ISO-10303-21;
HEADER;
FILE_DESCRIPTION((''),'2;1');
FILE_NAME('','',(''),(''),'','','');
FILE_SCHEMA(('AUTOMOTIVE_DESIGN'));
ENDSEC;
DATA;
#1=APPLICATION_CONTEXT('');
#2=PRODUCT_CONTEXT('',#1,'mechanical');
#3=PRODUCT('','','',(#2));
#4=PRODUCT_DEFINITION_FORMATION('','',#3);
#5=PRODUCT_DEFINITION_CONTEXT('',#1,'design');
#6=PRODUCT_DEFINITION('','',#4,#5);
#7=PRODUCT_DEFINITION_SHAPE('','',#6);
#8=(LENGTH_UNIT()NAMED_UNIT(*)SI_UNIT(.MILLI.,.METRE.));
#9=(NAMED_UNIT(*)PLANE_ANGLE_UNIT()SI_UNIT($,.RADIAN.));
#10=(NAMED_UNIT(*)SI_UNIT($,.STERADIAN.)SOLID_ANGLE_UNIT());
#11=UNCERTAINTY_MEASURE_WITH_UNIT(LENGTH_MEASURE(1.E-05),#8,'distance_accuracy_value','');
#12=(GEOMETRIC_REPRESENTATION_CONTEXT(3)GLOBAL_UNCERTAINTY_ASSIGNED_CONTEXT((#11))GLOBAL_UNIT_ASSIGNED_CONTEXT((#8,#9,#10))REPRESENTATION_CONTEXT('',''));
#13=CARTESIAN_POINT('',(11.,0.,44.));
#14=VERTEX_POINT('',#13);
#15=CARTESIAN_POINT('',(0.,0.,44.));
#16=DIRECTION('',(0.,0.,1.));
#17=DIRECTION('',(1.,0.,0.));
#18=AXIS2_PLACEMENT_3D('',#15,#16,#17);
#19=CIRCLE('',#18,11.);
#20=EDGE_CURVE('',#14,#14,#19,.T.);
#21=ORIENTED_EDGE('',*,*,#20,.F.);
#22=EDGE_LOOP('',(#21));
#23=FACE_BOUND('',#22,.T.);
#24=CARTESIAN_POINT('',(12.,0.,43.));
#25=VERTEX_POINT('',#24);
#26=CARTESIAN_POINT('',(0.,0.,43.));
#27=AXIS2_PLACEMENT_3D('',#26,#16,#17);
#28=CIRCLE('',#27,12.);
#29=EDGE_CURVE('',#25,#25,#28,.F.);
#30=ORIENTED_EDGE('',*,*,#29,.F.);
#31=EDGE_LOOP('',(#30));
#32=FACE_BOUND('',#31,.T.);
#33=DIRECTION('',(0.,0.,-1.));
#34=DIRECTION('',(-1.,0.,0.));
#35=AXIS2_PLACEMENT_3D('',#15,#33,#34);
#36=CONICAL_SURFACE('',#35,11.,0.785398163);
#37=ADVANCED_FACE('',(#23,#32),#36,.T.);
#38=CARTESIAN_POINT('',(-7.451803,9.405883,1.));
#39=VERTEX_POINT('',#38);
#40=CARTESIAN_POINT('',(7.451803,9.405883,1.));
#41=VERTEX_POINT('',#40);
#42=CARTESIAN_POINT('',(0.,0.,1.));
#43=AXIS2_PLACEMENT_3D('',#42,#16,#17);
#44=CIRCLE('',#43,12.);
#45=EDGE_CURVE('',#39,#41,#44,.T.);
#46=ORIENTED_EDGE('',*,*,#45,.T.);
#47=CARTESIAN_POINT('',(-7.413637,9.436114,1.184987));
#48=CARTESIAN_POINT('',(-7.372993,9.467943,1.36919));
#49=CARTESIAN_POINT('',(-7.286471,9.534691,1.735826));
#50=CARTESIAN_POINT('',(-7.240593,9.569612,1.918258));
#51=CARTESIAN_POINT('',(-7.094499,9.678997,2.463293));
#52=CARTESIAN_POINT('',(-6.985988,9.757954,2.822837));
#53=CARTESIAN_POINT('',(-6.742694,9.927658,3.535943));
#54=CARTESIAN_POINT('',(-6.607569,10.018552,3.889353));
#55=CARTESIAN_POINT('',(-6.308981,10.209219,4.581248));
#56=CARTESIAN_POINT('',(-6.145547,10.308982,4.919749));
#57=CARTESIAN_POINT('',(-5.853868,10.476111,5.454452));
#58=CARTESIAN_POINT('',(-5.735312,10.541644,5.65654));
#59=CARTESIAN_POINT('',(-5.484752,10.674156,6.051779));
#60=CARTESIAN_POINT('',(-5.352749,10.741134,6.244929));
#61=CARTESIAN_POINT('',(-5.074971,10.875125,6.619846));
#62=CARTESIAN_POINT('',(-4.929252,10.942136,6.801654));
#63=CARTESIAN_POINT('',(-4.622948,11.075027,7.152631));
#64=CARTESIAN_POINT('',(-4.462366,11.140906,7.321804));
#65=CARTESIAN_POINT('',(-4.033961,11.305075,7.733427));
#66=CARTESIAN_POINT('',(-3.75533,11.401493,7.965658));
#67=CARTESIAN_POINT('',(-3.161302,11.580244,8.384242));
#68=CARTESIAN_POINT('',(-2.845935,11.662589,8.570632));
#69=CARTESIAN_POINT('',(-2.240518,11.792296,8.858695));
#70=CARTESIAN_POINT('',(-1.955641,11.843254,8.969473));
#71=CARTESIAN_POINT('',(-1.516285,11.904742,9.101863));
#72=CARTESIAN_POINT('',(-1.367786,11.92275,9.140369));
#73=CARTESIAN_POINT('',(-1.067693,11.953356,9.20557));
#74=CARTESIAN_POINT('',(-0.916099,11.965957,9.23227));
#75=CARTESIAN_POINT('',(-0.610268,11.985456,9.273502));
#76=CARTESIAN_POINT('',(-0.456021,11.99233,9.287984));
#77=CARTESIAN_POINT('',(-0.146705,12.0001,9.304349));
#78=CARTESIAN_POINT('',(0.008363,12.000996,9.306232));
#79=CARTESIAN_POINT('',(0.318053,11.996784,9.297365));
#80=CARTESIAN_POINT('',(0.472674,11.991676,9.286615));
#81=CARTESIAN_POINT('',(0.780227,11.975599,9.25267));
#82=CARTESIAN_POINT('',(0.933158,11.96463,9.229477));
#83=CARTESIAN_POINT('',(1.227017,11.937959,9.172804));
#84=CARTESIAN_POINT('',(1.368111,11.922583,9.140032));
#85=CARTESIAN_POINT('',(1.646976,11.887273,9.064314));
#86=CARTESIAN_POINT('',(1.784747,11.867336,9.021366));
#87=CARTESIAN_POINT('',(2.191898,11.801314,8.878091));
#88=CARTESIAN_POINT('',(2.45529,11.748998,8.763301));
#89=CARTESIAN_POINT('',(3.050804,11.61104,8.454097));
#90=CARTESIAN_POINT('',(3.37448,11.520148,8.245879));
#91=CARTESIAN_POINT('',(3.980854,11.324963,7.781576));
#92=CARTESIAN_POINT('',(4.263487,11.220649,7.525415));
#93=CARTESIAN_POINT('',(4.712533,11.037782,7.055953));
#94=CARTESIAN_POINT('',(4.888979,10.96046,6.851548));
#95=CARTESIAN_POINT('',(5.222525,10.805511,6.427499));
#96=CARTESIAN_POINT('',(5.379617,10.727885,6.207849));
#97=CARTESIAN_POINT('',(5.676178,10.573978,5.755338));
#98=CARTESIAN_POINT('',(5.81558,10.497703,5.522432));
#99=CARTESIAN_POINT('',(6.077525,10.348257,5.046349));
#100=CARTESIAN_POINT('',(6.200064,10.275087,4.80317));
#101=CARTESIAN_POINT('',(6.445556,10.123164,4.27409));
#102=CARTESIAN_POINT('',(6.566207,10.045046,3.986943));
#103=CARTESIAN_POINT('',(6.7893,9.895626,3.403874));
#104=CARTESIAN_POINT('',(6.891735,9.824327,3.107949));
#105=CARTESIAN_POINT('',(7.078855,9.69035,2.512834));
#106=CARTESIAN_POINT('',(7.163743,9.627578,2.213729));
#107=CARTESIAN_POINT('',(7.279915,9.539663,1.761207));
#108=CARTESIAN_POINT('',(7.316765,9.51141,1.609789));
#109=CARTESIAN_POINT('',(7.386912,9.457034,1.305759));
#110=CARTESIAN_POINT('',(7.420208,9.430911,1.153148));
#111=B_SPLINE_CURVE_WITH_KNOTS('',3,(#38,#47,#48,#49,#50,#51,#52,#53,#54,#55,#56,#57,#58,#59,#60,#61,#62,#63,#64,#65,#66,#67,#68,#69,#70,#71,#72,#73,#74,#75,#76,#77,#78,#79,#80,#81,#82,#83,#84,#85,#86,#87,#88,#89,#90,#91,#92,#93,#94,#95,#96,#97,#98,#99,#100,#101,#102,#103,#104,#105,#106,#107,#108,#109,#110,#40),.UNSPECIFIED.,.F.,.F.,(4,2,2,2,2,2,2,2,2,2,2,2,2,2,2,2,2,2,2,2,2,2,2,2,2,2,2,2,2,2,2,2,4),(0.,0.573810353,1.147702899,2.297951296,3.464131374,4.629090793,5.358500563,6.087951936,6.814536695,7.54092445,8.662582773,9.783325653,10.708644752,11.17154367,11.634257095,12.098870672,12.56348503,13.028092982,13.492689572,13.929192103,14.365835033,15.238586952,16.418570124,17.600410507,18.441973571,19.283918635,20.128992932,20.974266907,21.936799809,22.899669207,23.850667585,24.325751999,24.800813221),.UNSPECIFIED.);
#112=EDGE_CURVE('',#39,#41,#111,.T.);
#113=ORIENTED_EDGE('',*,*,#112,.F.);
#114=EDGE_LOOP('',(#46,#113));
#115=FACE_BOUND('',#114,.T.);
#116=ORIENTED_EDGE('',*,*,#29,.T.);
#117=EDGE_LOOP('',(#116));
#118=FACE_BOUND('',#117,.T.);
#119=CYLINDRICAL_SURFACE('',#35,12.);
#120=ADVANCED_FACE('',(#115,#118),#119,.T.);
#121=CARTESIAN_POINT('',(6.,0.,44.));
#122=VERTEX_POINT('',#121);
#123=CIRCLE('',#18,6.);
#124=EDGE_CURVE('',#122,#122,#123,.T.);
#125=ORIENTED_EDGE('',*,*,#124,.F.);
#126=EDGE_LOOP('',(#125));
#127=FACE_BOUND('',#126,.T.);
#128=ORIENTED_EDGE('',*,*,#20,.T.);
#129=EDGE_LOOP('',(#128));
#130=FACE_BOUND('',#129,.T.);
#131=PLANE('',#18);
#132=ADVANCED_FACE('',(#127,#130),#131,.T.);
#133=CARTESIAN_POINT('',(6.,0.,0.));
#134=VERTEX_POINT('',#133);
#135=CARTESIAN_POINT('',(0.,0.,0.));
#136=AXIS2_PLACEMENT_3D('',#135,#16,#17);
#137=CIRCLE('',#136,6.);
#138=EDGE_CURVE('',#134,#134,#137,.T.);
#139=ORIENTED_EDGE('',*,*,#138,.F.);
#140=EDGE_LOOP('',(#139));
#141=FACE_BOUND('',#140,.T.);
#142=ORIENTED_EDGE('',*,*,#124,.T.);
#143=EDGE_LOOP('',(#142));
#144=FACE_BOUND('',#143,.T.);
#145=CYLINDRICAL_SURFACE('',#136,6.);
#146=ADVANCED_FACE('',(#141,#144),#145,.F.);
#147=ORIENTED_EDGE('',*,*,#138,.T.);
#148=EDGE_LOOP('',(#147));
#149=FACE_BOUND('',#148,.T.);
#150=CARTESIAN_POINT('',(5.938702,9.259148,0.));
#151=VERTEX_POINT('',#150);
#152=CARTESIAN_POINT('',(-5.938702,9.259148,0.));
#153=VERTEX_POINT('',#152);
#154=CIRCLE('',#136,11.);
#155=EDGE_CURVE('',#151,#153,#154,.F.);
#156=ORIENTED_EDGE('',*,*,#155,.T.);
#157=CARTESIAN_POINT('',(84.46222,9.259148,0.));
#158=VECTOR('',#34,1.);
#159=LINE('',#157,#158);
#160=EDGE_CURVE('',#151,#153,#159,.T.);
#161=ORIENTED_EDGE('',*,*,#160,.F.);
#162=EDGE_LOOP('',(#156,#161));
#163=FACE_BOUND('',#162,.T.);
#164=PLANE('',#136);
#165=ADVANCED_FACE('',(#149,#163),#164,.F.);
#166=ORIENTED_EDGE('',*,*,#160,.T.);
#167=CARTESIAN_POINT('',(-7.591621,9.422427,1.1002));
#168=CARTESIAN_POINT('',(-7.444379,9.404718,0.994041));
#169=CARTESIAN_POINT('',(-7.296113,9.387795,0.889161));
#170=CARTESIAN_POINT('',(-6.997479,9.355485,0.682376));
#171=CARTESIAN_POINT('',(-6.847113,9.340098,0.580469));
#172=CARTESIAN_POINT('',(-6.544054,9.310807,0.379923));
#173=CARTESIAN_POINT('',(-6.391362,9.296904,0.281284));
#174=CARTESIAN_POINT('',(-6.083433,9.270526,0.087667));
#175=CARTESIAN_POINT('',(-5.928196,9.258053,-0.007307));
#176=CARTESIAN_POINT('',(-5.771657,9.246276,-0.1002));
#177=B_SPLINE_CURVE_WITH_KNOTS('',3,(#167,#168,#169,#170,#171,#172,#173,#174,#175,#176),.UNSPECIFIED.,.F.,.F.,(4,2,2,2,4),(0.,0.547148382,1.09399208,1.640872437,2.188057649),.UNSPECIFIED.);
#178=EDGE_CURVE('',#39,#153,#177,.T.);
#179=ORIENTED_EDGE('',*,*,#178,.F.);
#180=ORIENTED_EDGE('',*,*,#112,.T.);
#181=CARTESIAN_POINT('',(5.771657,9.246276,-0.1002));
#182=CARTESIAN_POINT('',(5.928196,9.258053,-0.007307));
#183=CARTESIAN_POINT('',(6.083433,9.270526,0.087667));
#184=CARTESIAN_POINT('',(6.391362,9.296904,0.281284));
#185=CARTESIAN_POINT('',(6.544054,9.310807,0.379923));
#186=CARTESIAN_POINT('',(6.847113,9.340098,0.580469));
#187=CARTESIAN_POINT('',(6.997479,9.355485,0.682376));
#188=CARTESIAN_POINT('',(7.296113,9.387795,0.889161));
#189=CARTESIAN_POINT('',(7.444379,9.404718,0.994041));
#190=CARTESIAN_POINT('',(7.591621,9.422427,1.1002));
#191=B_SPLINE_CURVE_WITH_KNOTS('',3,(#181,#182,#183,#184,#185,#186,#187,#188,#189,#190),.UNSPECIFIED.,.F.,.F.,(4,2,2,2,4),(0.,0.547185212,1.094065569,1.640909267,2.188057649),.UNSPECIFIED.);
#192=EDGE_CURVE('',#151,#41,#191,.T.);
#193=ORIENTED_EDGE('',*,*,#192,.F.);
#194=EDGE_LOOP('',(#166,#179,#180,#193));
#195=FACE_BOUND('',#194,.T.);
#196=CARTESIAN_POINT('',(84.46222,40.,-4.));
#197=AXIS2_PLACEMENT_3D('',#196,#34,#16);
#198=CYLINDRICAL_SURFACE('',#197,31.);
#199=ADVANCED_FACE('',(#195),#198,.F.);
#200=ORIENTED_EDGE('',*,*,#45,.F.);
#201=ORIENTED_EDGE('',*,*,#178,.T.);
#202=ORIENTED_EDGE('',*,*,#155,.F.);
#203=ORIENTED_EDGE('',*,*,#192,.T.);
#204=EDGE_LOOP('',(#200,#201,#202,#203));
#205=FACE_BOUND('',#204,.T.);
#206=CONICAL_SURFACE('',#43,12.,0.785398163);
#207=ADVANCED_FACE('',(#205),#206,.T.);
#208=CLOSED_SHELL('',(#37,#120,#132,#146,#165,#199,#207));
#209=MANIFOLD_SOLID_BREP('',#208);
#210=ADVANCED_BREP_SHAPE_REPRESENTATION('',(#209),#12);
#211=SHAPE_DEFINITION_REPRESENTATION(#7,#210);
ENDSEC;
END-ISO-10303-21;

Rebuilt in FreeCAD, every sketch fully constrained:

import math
import FreeCAD as App
import Part
import Sketcher
from FreeCAD import Vector
Q = App.Units.Quantity


def edges_at(feature, points):
    """Names of the edges that pass closest to the given points."""
    edges = feature.Shape.Edges
    near = lambda p: min(range(len(edges)), key=lambda i: edges[i].distToShape(Part.Vertex(*p))[0])
    return sorted({f"Edge{near(p) + 1}" for p in points})

doc = App.newDocument("Part")
body = doc.addObject("PartDesign::Body", "Body")

# Sketch on XY plane
sketch1 = body.newObject("Sketcher::SketchObject", "Sketch")
sketch1.AttachmentSupport = (doc.getObject("XY_Plane"), [""])
sketch1.MapMode = "FlatFace"
sketch1.addGeometry(Part.Circle(Vector(0, 0, 0), Vector(0, 0, 1), 12), False)
sketch1.addConstraint([
    Sketcher.Constraint("Coincident", 0, 3, -1, 1),
    Sketcher.Constraint("Diameter", 0, Q("24 mm")),
])
pad1 = body.newObject("PartDesign::Pad", "Pad")
pad1.Profile = sketch1
pad1.Length = 44

# Sketch on XY plane
sketch2 = body.newObject("Sketcher::SketchObject", "Sketch001")
sketch2.AttachmentSupport = (doc.getObject("XY_Plane"), [""])
sketch2.MapMode = "FlatFace"
sketch2.AttachmentOffset = App.Placement(Vector(0, 0, 44), App.Rotation())
sketch2.addGeometry(Part.Circle(Vector(0, 0, 0), Vector(0, 0, 1), 6), False)
sketch2.addConstraint([
    Sketcher.Constraint("Coincident", 0, 3, -1, 1),
    Sketcher.Constraint("Diameter", 0, Q("12 mm")),
])
pocket1 = body.newObject("PartDesign::Pocket", "Pocket")
pocket1.Profile = sketch2
pocket1.Type = "ThroughAll"
pocket1.Midplane = True
doc.recompute()

chamfer = body.newObject("PartDesign::Chamfer", "Chamfer")
chamfer.Base = (pocket1, edges_at(pocket1, [(-12, 0, 0), (-12, 0, 44)]))
chamfer.Size = 1

# Sketch on YZ plane
sketch3 = body.newObject("Sketcher::SketchObject", "Sketch002")
sketch3.AttachmentSupport = (doc.getObject("YZ_Plane"), [""])
sketch3.MapMode = "FlatFace"
sketch3.addGeometry([
    Part.LineSegment(Vector(133, 63, 0), Vector(29, 25, 0)),  # 0
    Part.ArcOfCircle(Part.Circle(Vector(40, -4, 0), Vector(0, 0, 1), 31), math.radians(110), math.radians(175)),  # 1
    Part.LineSegment(Vector(9, -2, 0), Vector(0, -112, 0)),  # 2
    Part.LineSegment(Vector(0, -112, 0), Vector(176, -245, 0)),  # 3
    Part.LineSegment(Vector(176, -245, 0), Vector(309, -71, 0)),  # 4
    Part.LineSegment(Vector(309, -71, 0), Vector(133, 63, 0)),  # 5
], False)
sketch3.addConstraint([
    Sketcher.Constraint("Tangent", 0, 2, 1, 1),
    Sketcher.Constraint("Tangent", 1, 2, 2, 1),
    Sketcher.Constraint("Coincident", 2, 2, 3, 1),
    Sketcher.Constraint("Coincident", 3, 2, 4, 1),
    Sketcher.Constraint("Coincident", 4, 2, 5, 1),
    Sketcher.Constraint("Coincident", 5, 2, 0, 1),
    Sketcher.Constraint("Perpendicular", 3, 4),
    Sketcher.Constraint("Perpendicular", 4, 5),
    Sketcher.Constraint("Equal", 0, 2),
    Sketcher.Constraint("Equal", 3, 5),
    Sketcher.Constraint("Radius", 1, Q("31 mm")),
    Sketcher.Constraint("DistanceX", -1, 1, 1, 3, Q("40 mm")),
    Sketcher.Constraint("DistanceY", 1, 3, -1, 1, Q("4 mm")),
    Sketcher.Constraint("DistanceX", 1, 2, 3, 2, Q("167.1907 mm")),
    Sketcher.Constraint("Distance", 0, Q("110.425879 mm")),
    Sketcher.Constraint("Distance", 3, Q("220.851758 mm")),
    Sketcher.Constraint("DistanceX", -1, 1, 0, 2, Q("29.369909 mm")),
])
pocket2 = body.newObject("PartDesign::Pocket", "Pocket001")
pocket2.Profile = sketch3
pocket2.Type = "ThroughAll"
pocket2.Midplane = True

doc.recompute()
